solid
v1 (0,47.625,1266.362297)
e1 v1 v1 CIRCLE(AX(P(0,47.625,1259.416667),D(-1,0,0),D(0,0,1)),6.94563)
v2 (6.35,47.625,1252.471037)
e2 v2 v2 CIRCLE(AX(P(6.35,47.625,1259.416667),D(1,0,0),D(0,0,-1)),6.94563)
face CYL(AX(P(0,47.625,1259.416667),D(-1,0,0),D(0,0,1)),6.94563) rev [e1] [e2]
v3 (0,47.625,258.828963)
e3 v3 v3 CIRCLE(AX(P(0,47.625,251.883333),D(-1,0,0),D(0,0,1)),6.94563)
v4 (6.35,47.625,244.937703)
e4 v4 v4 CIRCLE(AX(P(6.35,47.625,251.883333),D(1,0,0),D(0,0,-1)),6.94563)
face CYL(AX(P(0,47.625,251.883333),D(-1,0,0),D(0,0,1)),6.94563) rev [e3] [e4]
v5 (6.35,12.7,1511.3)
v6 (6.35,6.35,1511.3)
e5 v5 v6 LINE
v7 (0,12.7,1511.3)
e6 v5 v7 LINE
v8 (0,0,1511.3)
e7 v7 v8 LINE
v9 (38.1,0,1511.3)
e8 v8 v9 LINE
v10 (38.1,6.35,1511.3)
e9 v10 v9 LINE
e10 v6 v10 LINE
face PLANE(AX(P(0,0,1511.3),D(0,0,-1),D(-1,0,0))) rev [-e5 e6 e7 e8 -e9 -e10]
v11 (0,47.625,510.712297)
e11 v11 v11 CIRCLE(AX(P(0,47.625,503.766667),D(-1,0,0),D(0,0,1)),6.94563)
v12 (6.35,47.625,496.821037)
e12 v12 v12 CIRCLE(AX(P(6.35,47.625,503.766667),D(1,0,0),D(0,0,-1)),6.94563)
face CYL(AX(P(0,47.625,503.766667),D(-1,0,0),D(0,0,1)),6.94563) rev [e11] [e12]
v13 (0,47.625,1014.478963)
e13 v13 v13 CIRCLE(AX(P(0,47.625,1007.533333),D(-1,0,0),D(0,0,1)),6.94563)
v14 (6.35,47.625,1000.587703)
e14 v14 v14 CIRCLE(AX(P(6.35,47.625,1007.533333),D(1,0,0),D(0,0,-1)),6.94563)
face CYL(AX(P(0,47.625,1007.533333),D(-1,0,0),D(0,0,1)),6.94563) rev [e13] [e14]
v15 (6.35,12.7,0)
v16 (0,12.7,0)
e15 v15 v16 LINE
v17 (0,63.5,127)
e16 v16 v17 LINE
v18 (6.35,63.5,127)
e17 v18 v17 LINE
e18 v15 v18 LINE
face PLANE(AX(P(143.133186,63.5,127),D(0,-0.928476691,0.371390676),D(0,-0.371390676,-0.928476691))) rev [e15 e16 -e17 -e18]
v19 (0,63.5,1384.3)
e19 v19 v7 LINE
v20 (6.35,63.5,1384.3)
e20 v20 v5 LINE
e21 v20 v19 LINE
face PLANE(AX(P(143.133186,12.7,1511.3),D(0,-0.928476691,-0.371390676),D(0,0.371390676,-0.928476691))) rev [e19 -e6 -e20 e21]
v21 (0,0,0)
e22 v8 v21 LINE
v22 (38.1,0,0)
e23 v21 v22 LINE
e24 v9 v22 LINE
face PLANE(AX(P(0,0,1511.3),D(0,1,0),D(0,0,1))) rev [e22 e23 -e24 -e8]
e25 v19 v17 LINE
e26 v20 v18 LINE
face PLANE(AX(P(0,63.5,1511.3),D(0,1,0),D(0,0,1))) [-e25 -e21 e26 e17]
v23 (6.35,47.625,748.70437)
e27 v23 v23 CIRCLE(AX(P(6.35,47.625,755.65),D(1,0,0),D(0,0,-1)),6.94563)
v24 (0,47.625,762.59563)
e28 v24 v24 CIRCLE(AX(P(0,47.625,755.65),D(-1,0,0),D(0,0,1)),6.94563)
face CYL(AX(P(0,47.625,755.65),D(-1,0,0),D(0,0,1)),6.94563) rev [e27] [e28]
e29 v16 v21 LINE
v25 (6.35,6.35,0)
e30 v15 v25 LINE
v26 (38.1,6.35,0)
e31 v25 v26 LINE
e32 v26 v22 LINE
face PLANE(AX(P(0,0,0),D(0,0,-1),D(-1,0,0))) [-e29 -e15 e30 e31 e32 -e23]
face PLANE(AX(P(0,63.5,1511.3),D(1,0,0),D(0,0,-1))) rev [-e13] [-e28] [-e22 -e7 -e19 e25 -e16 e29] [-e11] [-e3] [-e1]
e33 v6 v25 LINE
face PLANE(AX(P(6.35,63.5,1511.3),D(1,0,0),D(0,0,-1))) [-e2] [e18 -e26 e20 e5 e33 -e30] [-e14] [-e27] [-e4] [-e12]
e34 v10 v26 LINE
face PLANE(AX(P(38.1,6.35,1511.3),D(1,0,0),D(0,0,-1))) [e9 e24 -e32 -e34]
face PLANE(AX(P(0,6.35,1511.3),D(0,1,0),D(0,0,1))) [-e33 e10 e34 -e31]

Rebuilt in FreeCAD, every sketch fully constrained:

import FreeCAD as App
import Part
import Sketcher
from FreeCAD import Vector
Q = App.Units.Quantity

doc = App.newDocument("Part")
body = doc.addObject("PartDesign::Body", "Body")

# Sketch on XY plane
sketch1 = doc.addObject("Sketcher::SketchObject", "Sketch")
body.addObject(sketch1)
sketch1.AttachmentSupport = (doc.XY_Plane, [""])
sketch1.MapMode = "FlatFace"
sketch1.addGeometry([
    Part.LineSegment(Vector(0, 64, 0), Vector(0, 0, 0)),  # 0
    Part.LineSegment(Vector(0, 0, 0), Vector(38, 0, 0)),  # 1
    Part.LineSegment(Vector(38, 0, 0), Vector(38, 6, 0)),  # 2
    Part.LineSegment(Vector(38, 6, 0), Vector(6, 6, 0)),  # 3
    Part.LineSegment(Vector(6, 6, 0), Vector(6, 64, 0)),  # 4
    Part.LineSegment(Vector(6, 64, 0), Vector(0, 64, 0)),  # 5
], False)
sketch1.addConstraint([
    Sketcher.Constraint("Coincident", 0, 2, 1, 1),
    Sketcher.Constraint("Coincident", 1, 2, 2, 1),
    Sketcher.Constraint("Coincident", 2, 2, 3, 1),
    Sketcher.Constraint("Coincident", 3, 2, 4, 1),
    Sketcher.Constraint("Coincident", 4, 2, 5, 1),
    Sketcher.Constraint("Coincident", 5, 2, 0, 1),
    Sketcher.Constraint("Vertical", 0),
    Sketcher.Constraint("Horizontal", 1),
    Sketcher.Constraint("Vertical", 2),
    Sketcher.Constraint("Horizontal", 3),
    Sketcher.Constraint("Vertical", 4),
    Sketcher.Constraint("Horizontal", 5),
    Sketcher.Constraint("Coincident", 0, 2, -1, 1),
    Sketcher.Constraint("Equal", 5, 2),
    Sketcher.Constraint("DistanceX", 1, 1, 1, 2, Q("1.5 in")),
    Sketcher.Constraint("DistanceY", 0, 2, 0, 1, Q("2.5 in")),
    Sketcher.Constraint("DistanceX", 3, 2, 3, 1, Q("1.25 in")),
])
pad1 = doc.addObject("PartDesign::Pad", "Pad")
body.addObject(pad1)
pad1.Profile = sketch1
pad1.Length = Q("59.5 in")

# Sketch on YZ plane
sketch2 = doc.addObject("Sketcher::SketchObject", "Sketch001")
body.addObject(sketch2)
sketch2.AttachmentSupport = (doc.YZ_Plane, [""])
sketch2.MapMode = "FlatFace"
sketch2.addGeometry([
    Part.Circle(Vector(48, 1259, 0), Vector(0, 0, 1), 7),  # 0
    Part.Circle(Vector(48, 1008, 0), Vector(0, 0, 1), 7),  # 1
    Part.Circle(Vector(48, 756, 0), Vector(0, 0, 1), 7),  # 2
    Part.Circle(Vector(48, 504, 0), Vector(0, 0, 1), 7),  # 3
    Part.Circle(Vector(48, 252, 0), Vector(0, 0, 1), 7),  # 4
], False)
sketch2.addConstraint([
    Sketcher.Constraint("Equal", 0, 1),
    Sketcher.Constraint("Equal", 1, 2),
    Sketcher.Constraint("Equal", 2, 3),
    Sketcher.Constraint("Equal", 3, 4),
    Sketcher.Constraint("Vertical", 0, 3, 1, 3),
    Sketcher.Constraint("Vertical", 1, 3, 2, 3),
    Sketcher.Constraint("Vertical", 2, 3, 3, 3),
    Sketcher.Constraint("Vertical", 3, 3, 4, 3),
    Sketcher.Constraint("Diameter", 0, Q("0.5469 in")),
    Sketcher.Constraint("DistanceY", -1, 1, 2, 3, Q("29.75 in")),
    Sketcher.Constraint("DistanceY", 3, 3, 0, 3, Q("29.75 in")),
    Sketcher.Constraint("DistanceY", 4, 3, 1, 3, Q("29.75 in")),
    Sketcher.Constraint("DistanceX", -1, 1, 0, 3, Q("1.875 in")),
    Sketcher.Constraint("DistanceY", -1, 1, 0, 3, Q("1259.416667 mm")),
    Sketcher.Constraint("DistanceY", -1, 1, 1, 3, Q("1007.533333 mm")),
])
doc.recompute()
hole = doc.addObject("PartDesign::Hole", "Hole")
body.addObject(hole)
hole.Profile = sketch2
hole.ThreadType = "None"
hole.Diameter = Q("0.5469 in")
hole.DepthType = "Dimension"
hole.Depth = Q("0.65 in")
hole.DrillPoint = "Angled"
hole.DrillPointAngle = 118
hole.Reversed = True

# Sketch on YZ plane
sketch3 = doc.addObject("Sketcher::SketchObject", "Sketch002")
body.addObject(sketch3)
sketch3.AttachmentSupport = (doc.YZ_Plane, [""])
sketch3.MapMode = "FlatFace"
sketch3.addGeometry([
    Part.LineSegment(Vector(64, 1384, 0), Vector(13, 1511, 0)),  # 0
    Part.LineSegment(Vector(13, 1511, 0), Vector(64, 1511, 0)),  # 1
    Part.LineSegment(Vector(64, 1511, 0), Vector(64, 1384, 0)),  # 2
    Part.LineSegment(Vector(13, 0, 0), Vector(64, 127, 0)),  # 3
    Part.LineSegment(Vector(64, 127, 0), Vector(64, 0, 0)),  # 4
    Part.LineSegment(Vector(64, 0, 0), Vector(13, 0, 0)),  # 5
], False)
sketch3.addConstraint([
    Sketcher.Constraint("Coincident", 0, 2, 1, 1),
    Sketcher.Constraint("Coincident", 1, 2, 2, 1),
    Sketcher.Constraint("Coincident", 2, 2, 0, 1),
    Sketcher.Constraint("Coincident", 3, 2, 4, 1),
    Sketcher.Constraint("Coincident", 4, 2, 5, 1),
    Sketcher.Constraint("Coincident", 5, 2, 3, 1),
    Sketcher.Constraint("Horizontal", 1),
    Sketcher.Constraint("Vertical", 2),
    Sketcher.Constraint("Vertical", 4),
    Sketcher.Constraint("Horizontal", 5),
    Sketcher.Constraint("PointOnObject", 4, 2, -1),
    Sketcher.Constraint("Vertical", 2, 2, 3, 2),
    Sketcher.Constraint("Vertical", 0, 2, 5, 2),
    Sketcher.Constraint("Equal", 2, 4),
    Sketcher.Constraint("DistanceX", 1, 1, 1, 2, Q("2 in")),
    Sketcher.Constraint("DistanceY", 2, 2, 2, 1, Q("5 in")),
    Sketcher.Constraint("DistanceX", -1, 1, 0, 2, Q("0.5 in")),
    Sketcher.Constraint("DistanceY", -1, 1, 0, 2, Q("59.5 in")),
])
pocket1 = doc.addObject("PartDesign::Pocket", "Pocket")
body.addObject(pocket1)
pocket1.Profile = sketch3
pocket1.Length = Q("0.25 in")
pocket1.Reversed = True

doc.recompute()
